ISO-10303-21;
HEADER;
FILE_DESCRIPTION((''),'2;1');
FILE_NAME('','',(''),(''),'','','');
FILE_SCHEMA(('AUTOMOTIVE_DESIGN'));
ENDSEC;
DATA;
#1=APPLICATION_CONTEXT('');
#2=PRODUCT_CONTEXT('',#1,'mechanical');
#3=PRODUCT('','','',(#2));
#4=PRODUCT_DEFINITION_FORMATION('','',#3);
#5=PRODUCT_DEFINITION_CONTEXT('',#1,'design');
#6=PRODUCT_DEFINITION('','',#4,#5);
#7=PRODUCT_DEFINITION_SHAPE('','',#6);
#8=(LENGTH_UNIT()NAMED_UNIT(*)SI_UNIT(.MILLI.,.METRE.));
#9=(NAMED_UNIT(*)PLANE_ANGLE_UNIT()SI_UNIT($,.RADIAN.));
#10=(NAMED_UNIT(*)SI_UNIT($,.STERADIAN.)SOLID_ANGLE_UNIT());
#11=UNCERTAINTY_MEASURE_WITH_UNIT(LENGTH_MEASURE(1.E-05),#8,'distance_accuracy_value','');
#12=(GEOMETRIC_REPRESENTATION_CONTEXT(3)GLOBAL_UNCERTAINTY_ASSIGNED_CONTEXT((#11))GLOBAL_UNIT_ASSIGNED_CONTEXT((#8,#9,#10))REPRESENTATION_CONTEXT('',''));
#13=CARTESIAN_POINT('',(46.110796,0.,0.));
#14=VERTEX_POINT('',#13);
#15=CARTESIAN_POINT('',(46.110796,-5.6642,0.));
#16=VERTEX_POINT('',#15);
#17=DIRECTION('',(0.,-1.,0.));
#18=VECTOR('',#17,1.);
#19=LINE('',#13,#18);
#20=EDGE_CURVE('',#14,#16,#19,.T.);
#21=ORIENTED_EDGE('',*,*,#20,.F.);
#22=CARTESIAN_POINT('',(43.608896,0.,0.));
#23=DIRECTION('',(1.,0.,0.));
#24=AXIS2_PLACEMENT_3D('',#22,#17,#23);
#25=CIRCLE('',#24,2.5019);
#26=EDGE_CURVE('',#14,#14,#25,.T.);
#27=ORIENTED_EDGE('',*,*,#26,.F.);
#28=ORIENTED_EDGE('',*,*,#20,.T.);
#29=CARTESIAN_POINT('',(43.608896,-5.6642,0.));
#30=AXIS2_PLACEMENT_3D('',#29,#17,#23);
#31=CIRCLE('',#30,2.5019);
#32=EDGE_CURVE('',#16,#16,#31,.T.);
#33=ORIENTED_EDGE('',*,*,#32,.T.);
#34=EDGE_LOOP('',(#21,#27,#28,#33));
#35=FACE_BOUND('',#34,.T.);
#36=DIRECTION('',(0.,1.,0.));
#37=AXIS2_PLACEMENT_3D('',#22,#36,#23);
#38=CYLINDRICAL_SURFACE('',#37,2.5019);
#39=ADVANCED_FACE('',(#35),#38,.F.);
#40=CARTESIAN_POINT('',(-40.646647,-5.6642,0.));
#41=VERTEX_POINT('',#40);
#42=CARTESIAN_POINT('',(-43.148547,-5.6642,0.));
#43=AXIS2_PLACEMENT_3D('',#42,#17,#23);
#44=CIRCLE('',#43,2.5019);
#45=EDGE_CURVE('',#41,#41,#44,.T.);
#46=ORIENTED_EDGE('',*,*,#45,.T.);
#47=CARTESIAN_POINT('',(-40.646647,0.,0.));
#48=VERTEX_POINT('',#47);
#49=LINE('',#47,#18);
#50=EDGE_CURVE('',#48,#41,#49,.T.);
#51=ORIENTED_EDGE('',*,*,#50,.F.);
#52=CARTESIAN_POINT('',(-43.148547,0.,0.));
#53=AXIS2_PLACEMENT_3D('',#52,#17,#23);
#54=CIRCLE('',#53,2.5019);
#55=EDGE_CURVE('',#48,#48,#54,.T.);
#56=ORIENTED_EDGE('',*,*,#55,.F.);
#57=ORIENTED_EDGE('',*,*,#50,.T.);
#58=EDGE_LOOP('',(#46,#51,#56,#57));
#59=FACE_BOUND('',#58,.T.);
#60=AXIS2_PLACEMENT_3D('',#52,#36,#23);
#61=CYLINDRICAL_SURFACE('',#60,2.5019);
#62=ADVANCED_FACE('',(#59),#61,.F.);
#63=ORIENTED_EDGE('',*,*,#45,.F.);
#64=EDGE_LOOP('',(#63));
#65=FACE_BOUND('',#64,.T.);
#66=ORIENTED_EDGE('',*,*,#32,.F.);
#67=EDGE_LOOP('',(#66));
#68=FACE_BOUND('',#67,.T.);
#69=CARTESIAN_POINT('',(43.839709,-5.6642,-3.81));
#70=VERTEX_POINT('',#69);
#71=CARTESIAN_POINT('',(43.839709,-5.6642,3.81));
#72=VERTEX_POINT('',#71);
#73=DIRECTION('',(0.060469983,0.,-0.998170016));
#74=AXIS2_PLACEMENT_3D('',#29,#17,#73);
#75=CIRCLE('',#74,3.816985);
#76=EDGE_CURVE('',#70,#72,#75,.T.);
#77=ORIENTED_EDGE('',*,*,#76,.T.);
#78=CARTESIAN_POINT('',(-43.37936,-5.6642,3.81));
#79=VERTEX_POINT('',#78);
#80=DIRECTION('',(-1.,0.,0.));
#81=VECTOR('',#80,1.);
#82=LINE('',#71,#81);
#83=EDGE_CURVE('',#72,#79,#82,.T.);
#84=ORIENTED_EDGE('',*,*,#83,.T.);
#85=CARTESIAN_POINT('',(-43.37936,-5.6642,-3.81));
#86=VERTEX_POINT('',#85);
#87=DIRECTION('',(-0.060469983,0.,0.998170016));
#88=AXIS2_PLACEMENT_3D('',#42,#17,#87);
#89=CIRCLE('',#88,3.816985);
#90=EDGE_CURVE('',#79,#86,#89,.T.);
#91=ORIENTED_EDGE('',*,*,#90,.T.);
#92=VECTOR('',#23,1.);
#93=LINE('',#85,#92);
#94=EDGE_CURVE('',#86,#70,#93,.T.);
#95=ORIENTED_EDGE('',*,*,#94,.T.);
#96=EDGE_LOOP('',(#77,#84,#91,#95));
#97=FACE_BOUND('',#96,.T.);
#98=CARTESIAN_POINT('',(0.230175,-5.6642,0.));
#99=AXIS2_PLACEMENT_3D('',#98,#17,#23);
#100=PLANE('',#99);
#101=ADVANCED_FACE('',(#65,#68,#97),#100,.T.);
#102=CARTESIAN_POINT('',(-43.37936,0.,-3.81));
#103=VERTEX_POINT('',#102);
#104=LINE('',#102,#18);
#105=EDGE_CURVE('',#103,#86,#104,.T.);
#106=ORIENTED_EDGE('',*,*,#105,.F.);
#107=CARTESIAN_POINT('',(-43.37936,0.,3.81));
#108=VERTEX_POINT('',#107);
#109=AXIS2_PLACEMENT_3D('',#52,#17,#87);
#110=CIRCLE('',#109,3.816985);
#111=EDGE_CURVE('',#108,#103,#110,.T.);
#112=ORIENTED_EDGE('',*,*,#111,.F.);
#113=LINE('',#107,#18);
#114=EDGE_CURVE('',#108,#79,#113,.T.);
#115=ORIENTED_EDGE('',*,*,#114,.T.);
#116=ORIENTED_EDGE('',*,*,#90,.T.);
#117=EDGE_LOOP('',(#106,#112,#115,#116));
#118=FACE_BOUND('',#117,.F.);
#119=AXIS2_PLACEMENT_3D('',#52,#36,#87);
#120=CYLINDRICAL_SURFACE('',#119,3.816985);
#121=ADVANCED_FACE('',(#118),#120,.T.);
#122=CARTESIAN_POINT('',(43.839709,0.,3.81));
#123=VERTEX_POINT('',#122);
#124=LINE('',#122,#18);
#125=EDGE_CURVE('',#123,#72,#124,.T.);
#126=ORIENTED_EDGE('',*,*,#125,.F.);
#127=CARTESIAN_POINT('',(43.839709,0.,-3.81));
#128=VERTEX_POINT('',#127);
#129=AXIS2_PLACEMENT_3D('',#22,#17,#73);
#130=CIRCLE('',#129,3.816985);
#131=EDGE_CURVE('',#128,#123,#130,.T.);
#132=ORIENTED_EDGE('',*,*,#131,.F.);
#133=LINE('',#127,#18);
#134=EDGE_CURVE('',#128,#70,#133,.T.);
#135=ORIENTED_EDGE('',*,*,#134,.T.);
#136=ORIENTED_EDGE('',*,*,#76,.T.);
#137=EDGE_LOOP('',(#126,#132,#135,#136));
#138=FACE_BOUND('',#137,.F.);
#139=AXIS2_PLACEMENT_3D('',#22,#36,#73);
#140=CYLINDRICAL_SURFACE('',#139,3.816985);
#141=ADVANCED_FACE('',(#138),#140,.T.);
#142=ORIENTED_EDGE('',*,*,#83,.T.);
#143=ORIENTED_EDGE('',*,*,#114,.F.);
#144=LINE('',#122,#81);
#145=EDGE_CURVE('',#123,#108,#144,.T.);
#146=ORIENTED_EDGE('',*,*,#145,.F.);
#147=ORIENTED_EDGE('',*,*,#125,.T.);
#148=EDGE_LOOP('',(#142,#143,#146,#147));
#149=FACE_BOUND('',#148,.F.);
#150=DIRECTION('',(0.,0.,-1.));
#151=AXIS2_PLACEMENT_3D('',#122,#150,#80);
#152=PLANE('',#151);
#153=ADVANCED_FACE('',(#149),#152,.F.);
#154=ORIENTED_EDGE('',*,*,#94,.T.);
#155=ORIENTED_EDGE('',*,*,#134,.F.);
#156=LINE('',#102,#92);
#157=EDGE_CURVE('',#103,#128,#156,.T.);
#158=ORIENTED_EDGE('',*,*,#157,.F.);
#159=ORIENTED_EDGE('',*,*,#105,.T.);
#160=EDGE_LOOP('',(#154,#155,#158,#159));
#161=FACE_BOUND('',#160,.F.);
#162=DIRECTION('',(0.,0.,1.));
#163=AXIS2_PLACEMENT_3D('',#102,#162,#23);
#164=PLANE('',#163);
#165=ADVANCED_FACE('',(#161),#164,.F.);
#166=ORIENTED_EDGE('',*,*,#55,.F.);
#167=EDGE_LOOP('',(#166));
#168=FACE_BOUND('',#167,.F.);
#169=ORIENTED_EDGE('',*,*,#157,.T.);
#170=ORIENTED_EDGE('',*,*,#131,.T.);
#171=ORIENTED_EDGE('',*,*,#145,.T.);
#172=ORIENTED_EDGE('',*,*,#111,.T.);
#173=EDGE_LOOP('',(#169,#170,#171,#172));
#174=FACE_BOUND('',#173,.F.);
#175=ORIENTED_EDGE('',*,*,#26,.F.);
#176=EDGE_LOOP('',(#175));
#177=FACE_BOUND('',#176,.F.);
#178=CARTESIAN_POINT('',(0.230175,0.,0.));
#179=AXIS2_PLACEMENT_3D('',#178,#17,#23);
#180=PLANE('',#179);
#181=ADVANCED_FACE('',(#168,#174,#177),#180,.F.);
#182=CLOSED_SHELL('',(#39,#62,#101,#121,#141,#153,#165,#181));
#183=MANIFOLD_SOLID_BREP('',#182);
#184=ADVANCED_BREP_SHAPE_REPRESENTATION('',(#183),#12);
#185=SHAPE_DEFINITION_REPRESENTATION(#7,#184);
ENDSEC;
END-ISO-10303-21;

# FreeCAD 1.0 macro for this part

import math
import FreeCAD as App
import Part
import Sketcher
from FreeCAD import Vector
Q = App.Units.Quantity

doc = App.newDocument("Part")
body = doc.addObject("PartDesign::Body", "Body")

sketch1 = body.newObject("Sketcher::SketchObject", "Sketch")
sketch1.AttachmentSupport = (doc.getObject("XZ_Plane"), [""])
sketch1.MapMode = "FlatFace"
sketch1.addGeometry([
    Part.ArcOfCircle(Part.Circle(Vector(43.6, 0, 0), Vector(0, 0, 1), 3.8), math.radians(-87), math.radians(87)),
    Part.LineSegment(Vector(43.8, 3.8, 0), Vector(-43.4, 3.8, 0)),
    Part.ArcOfCircle(Part.Circle(Vector(-43.1, 0, 0), Vector(0, 0, 1), 3.8), math.radians(93), math.radians(267)),
    Part.LineSegment(Vector(-43.4, -3.8, 0), Vector(43.8, -3.8, 0)),
    Part.Circle(Vector(-43.1, 0, 0), Vector(0, 0, 1), 2.5),
    Part.Circle(Vector(43.6, 0, 0), Vector(0, 0, 1), 2.5),
], False)
sketch1.addConstraint([
    Sketcher.Constraint("Coincident", 0, 2, 1, 1),
    Sketcher.Constraint("Coincident", 1, 2, 2, 1),
    Sketcher.Constraint("Coincident", 2, 2, 3, 1),
    Sketcher.Constraint("Coincident", 3, 2, 0, 1),
    Sketcher.Constraint("Horizontal", 1),
    Sketcher.Constraint("Horizontal", 3),
    Sketcher.Constraint("Coincident", 4, 3, 2, 3),
    Sketcher.Constraint("Coincident", 5, 3, 0, 3),
    Sketcher.Constraint("Equal", 0, 2),
    Sketcher.Constraint("Equal", 4, 5),
    Sketcher.Constraint("Symmetric", 1, 2, 2, 2, -1),
    Sketcher.Constraint("PointOnObject", 0, 3, -1),
    Sketcher.Constraint("Diameter", 4, Q("0.197 in")),
    Sketcher.Constraint("DistanceY", 2, 2, 1, 2, Q("0.3 in")),
    Sketcher.Constraint("Radius", 0, 3.816985),
    Sketcher.Constraint("DistanceX", 1, 2, 1, 1, 87.219069),
    Sketcher.Constraint("DistanceX", -1, 1, 0, 2, 43.839709),
])
pad1 = body.newObject("PartDesign::Pad", "Pad")
pad1.Profile = sketch1
pad1.Length = Q("0.223 in")

doc.recompute()
